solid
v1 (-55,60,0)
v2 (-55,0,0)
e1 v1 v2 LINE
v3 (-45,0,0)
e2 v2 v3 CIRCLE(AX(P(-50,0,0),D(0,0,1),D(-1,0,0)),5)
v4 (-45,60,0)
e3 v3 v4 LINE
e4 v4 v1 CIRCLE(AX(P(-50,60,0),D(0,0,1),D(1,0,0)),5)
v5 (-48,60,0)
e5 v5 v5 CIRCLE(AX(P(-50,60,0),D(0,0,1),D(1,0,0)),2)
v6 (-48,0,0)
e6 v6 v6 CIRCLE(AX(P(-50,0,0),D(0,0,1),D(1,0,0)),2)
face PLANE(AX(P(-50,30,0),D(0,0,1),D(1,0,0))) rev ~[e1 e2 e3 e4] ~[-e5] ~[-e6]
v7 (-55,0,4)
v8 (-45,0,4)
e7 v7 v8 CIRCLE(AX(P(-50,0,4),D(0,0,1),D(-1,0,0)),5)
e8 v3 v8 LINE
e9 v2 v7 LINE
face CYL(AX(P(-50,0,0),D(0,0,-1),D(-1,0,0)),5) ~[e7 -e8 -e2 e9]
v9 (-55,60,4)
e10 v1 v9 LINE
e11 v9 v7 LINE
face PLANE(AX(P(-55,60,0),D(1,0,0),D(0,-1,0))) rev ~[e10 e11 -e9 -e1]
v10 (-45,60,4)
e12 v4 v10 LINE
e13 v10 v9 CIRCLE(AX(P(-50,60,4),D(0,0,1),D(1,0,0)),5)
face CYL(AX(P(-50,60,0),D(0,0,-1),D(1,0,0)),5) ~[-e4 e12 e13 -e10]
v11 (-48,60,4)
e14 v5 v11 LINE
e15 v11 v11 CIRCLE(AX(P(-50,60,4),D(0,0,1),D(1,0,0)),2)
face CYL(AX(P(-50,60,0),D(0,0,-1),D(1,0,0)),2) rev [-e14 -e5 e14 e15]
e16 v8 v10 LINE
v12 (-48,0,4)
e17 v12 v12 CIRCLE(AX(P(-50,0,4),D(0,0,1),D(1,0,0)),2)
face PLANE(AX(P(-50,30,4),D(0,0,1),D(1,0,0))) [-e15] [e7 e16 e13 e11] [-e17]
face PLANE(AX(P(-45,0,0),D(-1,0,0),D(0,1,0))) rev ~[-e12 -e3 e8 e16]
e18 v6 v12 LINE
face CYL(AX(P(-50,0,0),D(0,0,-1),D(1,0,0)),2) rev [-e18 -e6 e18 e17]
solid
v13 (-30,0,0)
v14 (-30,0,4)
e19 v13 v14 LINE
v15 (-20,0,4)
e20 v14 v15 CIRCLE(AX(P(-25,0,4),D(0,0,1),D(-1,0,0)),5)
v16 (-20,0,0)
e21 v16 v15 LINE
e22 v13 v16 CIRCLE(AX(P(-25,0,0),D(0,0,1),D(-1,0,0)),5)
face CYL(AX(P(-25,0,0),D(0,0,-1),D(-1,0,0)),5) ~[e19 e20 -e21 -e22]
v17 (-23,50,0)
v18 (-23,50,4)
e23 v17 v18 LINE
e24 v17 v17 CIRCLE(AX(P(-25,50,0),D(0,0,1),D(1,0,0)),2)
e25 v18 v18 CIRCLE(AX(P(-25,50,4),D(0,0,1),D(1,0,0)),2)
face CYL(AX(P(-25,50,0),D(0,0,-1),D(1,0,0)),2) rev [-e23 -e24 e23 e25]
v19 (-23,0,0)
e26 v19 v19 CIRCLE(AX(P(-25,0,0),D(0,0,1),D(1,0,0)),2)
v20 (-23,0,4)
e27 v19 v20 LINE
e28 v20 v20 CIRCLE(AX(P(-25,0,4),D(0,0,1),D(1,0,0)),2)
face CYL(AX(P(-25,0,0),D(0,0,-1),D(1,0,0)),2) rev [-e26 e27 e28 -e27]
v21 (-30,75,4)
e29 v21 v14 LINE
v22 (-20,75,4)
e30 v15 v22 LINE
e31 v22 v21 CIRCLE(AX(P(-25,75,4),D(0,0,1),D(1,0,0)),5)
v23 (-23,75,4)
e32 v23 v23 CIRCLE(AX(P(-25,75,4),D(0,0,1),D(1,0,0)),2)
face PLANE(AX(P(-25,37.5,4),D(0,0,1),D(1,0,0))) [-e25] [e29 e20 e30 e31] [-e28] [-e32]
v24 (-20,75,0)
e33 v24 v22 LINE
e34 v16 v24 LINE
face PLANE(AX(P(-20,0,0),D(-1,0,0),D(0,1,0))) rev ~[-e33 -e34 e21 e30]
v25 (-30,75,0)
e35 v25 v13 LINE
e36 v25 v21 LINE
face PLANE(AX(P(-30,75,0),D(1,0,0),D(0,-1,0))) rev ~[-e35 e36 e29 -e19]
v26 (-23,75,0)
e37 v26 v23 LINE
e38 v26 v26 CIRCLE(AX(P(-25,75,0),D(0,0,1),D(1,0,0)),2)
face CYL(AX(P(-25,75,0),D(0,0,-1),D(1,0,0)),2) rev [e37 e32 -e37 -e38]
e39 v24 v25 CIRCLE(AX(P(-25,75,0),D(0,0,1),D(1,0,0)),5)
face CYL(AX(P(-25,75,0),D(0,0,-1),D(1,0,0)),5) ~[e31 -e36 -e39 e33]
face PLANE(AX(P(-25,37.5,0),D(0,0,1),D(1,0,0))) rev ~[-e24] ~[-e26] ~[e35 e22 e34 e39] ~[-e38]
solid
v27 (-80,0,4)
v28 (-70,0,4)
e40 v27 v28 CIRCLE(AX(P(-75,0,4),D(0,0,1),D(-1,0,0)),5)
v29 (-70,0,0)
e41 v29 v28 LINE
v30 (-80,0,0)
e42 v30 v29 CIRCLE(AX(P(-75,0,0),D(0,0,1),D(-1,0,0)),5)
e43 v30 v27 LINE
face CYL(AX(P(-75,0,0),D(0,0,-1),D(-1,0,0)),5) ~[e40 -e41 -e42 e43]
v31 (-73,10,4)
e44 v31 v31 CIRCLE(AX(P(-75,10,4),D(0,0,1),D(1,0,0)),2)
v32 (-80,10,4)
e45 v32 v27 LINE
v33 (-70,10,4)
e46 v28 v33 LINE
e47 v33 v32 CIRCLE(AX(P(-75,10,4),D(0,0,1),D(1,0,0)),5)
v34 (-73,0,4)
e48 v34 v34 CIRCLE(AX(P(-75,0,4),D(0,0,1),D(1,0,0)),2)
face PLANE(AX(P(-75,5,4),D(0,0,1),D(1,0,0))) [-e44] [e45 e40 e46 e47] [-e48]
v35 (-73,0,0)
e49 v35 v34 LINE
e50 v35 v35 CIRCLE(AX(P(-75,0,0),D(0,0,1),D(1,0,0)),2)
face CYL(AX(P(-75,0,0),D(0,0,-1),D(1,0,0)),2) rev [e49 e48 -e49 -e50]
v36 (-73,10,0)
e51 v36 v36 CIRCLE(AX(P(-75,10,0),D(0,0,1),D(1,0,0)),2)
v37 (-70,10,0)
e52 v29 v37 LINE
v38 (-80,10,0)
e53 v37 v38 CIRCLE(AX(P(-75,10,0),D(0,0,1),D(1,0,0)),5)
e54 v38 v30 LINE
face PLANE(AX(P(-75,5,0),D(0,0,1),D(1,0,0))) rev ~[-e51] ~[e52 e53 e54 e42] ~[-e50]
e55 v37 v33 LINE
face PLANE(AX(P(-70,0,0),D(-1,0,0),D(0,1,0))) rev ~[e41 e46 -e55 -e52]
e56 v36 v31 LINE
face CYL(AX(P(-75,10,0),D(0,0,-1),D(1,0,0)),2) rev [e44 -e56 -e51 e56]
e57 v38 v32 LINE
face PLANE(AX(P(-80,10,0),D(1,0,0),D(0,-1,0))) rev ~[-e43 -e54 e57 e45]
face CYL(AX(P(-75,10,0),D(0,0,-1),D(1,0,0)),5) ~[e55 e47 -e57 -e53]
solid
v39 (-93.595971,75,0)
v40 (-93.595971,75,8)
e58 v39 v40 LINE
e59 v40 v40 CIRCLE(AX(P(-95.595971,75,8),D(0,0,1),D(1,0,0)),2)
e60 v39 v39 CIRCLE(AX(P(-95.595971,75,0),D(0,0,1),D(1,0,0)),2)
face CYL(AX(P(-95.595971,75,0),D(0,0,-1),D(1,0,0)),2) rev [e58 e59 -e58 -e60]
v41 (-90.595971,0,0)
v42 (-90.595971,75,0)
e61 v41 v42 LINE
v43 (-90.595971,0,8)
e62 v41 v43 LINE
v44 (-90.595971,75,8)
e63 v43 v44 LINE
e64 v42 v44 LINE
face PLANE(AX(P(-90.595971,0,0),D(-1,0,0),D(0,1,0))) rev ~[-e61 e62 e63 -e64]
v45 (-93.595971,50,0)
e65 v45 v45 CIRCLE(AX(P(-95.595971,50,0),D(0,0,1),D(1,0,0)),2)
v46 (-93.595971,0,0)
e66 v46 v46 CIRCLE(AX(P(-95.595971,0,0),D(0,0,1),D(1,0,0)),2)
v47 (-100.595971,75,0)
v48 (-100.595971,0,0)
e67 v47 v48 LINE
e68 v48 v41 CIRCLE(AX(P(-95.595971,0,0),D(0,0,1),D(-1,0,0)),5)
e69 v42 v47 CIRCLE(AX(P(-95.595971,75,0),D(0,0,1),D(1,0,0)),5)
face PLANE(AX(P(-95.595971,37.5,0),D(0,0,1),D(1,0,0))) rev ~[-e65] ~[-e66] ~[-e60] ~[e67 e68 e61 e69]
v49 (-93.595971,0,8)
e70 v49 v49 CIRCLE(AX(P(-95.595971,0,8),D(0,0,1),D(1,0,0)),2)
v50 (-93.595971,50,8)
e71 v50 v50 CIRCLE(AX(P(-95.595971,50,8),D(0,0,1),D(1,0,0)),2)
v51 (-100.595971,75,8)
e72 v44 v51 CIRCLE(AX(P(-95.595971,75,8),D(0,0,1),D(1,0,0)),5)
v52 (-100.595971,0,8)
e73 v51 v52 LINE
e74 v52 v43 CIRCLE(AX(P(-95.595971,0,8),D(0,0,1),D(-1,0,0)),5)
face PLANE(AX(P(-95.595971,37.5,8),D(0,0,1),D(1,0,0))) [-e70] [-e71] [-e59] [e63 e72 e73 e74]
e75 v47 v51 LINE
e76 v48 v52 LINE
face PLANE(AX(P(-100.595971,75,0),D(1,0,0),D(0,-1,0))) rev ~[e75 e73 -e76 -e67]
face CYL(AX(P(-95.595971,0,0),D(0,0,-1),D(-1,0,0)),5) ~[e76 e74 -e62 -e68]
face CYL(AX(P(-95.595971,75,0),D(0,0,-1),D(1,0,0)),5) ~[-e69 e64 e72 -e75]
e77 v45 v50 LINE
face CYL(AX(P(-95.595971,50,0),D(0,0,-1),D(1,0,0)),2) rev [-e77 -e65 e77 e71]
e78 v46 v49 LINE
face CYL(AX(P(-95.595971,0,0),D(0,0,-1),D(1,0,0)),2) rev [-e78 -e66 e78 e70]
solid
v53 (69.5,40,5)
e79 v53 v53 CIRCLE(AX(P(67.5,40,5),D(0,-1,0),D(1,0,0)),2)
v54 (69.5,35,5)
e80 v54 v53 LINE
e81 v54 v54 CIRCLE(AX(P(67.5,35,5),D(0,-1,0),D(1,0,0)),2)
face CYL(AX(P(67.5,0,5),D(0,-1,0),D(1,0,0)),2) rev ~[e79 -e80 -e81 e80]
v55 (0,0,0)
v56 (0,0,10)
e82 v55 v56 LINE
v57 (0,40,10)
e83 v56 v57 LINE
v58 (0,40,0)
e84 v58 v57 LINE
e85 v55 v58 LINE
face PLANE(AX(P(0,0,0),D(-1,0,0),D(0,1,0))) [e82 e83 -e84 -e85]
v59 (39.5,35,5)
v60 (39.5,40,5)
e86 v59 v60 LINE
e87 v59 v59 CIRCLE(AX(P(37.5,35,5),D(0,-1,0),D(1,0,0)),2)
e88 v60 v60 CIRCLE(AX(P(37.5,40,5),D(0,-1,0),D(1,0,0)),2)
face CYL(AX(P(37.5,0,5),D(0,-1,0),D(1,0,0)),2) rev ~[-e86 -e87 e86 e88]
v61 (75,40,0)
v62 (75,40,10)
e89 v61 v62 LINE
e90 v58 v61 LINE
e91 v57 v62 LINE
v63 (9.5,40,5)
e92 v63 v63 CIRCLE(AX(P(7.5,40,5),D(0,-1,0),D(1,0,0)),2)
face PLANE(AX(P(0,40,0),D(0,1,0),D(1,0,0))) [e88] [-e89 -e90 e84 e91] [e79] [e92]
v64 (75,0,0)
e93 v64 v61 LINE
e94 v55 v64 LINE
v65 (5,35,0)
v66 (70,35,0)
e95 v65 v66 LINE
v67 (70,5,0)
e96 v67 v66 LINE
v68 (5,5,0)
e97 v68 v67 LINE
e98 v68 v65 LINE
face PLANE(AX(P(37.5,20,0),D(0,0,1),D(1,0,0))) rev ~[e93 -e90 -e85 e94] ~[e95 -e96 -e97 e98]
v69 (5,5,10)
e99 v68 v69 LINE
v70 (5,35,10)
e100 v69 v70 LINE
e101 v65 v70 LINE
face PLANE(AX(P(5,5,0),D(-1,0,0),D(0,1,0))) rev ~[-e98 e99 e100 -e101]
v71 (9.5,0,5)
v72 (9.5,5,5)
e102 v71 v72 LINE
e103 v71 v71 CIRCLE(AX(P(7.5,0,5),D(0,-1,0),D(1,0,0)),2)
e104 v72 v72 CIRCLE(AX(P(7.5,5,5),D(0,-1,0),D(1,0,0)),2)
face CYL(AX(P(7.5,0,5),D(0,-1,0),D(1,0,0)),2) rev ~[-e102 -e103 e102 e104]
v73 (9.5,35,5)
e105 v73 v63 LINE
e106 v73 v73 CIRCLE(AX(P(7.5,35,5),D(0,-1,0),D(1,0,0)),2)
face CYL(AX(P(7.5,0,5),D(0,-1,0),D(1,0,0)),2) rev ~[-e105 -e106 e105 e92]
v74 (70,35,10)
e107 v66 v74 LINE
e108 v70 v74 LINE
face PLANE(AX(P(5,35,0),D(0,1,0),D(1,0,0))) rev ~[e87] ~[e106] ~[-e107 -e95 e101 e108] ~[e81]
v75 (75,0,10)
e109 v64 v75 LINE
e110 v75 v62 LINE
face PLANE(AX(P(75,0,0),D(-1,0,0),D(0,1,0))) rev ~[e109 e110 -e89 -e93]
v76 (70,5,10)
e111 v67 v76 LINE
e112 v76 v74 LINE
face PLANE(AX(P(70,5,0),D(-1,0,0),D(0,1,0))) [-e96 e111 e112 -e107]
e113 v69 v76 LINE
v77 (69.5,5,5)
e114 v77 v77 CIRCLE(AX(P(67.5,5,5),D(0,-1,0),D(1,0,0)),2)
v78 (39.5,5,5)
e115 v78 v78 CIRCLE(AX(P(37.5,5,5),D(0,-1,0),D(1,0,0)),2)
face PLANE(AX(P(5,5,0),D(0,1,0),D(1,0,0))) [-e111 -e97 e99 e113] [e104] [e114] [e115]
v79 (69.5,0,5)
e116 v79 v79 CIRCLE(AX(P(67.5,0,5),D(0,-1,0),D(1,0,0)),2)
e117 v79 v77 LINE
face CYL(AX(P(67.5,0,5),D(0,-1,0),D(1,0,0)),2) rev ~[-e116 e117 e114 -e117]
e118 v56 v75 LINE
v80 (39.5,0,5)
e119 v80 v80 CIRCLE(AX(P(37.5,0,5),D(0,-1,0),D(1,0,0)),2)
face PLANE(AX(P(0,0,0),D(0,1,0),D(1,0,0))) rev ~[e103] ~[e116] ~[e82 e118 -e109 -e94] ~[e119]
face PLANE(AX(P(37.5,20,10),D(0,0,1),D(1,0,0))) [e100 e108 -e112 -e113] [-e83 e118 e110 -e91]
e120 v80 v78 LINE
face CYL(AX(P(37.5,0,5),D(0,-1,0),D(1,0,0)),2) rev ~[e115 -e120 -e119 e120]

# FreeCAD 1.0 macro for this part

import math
import FreeCAD as App
import Part
import Sketcher
from FreeCAD import Vector

doc = App.newDocument("Part")
params = doc.addObject("Spreadsheet::Sheet", "Params")
for row, (alias, value) in enumerate([
    ("sketch1_width", "75 mm"),
    ("sketch1_width2", "65 mm"),
    ("sketch1_height", "40 mm"),
    ("sketch1_height2", "30 mm"),
    ("pad1_length", "10 mm"),
    ("sketch2_diameter", "4 mm"),
    ("sketch3_diameter", "4 mm"),
    ("sketch3_radius", "5 mm"),
    ("sketch3_height", "10 mm"),
    ("sketch3_height2", "60 mm"),
    ("sketch3_height3", "75 mm"),
    ("pad2_length", "4 mm"),
    ("sketch4_diameter", "4 mm"),
    ("sketch4_radius", "5 mm"),
    ("sketch4_height", "75 mm"),
    ("pad3_length", "8 mm"),
], start=1):
    params.set(f"A{row}", alias)
    params.set(f"B{row}", "=" + value)
    params.setAlias(f"B{row}", alias)

body = doc.addObject("PartDesign::Body", "Body")

sketch1 = body.newObject("Sketcher::SketchObject", "Sketch")
sketch1.AttachmentSupport = (doc.getObject("XY_Plane"), [""])
sketch1.MapMode = "FlatFace"
sketch1.addGeometry(Part.LineSegment(Vector(0, 40, 0), Vector(0, 0, 0)), False)
sketch1.addGeometry(Part.LineSegment(Vector(0, 0, 0), Vector(75, 0, 0)), False)
sketch1.addGeometry(Part.LineSegment(Vector(75, 0, 0), Vector(75, 40, 0)), False)
sketch1.addGeometry(Part.LineSegment(Vector(75, 40, 0), Vector(0, 40, 0)), False)
sketch1.addGeometry(Part.LineSegment(Vector(70, 5, 0), Vector(5, 5, 0)), False)
sketch1.addGeometry(Part.LineSegment(Vector(5, 5, 0), Vector(5, 35, 0)), False)
sketch1.addGeometry(Part.LineSegment(Vector(5, 35, 0), Vector(70, 35, 0)), False)
sketch1.addGeometry(Part.LineSegment(Vector(70, 35, 0), Vector(70, 5, 0)), False)
sketch1.addConstraint(Sketcher.Constraint("Coincident", 0, 2, 1, 1))
sketch1.addConstraint(Sketcher.Constraint("Coincident", 1, 2, 2, 1))
sketch1.addConstraint(Sketcher.Constraint("Coincident", 2, 2, 3, 1))
sketch1.addConstraint(Sketcher.Constraint("Coincident", 3, 2, 0, 1))
sketch1.addConstraint(Sketcher.Constraint("Coincident", 4, 2, 5, 1))
sketch1.addConstraint(Sketcher.Constraint("Coincident", 5, 2, 6, 1))
sketch1.addConstraint(Sketcher.Constraint("Coincident", 6, 2, 7, 1))
sketch1.addConstraint(Sketcher.Constraint("Coincident", 7, 2, 4, 1))
sketch1.addConstraint(Sketcher.Constraint("Vertical", 0))
sketch1.addConstraint(Sketcher.Constraint("Horizontal", 1))
sketch1.addConstraint(Sketcher.Constraint("Vertical", 2))
sketch1.addConstraint(Sketcher.Constraint("Horizontal", 3))
sketch1.addConstraint(Sketcher.Constraint("Horizontal", 4))
sketch1.addConstraint(Sketcher.Constraint("Vertical", 5))
sketch1.addConstraint(Sketcher.Constraint("Horizontal", 6))
sketch1.addConstraint(Sketcher.Constraint("Vertical", 7))
sketch1.addConstraint(Sketcher.Constraint("Coincident", 0, 2, -1, 1))
sketch1.addConstraint(Sketcher.Constraint("DistanceX", 1, 1, 1, 2, 75.0))
sketch1.addConstraint(Sketcher.Constraint("DistanceX", 4, 2, 4, 1, 65.0))
sketch1.addConstraint(Sketcher.Constraint("DistanceY", 0, 2, 0, 1, 40.0))
sketch1.addConstraint(Sketcher.Constraint("DistanceY", 5, 1, 5, 2, 30.0))
sketch1.addConstraint(Sketcher.Constraint("DistanceX", -1, 1, 4, 2, 5.0))
sketch1.addConstraint(Sketcher.Constraint("DistanceY", -1, 1, 4, 2, 5.0))
sketch1.setExpression("Constraints[17]", "Params.sketch1_width")
sketch1.setExpression("Constraints[18]", "Params.sketch1_width2")
sketch1.setExpression("Constraints[19]", "Params.sketch1_height")
sketch1.setExpression("Constraints[20]", "Params.sketch1_height2")
pad1 = body.newObject("PartDesign::Pad", "Pad")
pad1.Profile = sketch1
pad1.setExpression("Length", "Params.pad1_length")

sketch2 = body.newObject("Sketcher::SketchObject", "Sketch001")
sketch2.AttachmentSupport = (doc.getObject("XZ_Plane"), [""])
sketch2.MapMode = "FlatFace"
sketch2.addGeometry(Part.Circle(Vector(7.5, 5, 0), Vector(0, 0, 1), 2), False)
sketch2.addGeometry(Part.Circle(Vector(37.5, 5, 0), Vector(0, 0, 1), 2), False)
sketch2.addGeometry(Part.Circle(Vector(67.5, 5, 0), Vector(0, 0, 1), 2), False)
sketch2.addConstraint(Sketcher.Constraint("Equal", 0, 1))
sketch2.addConstraint(Sketcher.Constraint("Equal", 1, 2))
sketch2.addConstraint(Sketcher.Constraint("Horizontal", 0, 3, 1, 3))
sketch2.addConstraint(Sketcher.Constraint("Horizontal", 1, 3, 2, 3))
sketch2.addConstraint(Sketcher.Constraint("Diameter", 0, 4.0))
sketch2.addConstraint(Sketcher.Constraint("DistanceY", -1, 1, 0, 3, 5.0))
sketch2.addConstraint(Sketcher.Constraint("DistanceX", 0, 3, 1, 3, 30.0))
sketch2.addConstraint(Sketcher.Constraint("DistanceX", 1, 3, 2, 3, 30.0))
sketch2.addConstraint(Sketcher.Constraint("DistanceX", -1, 1, 0, 3, 7.5))
sketch2.setExpression("Constraints[4]", "Params.sketch2_diameter")
pocket1 = body.newObject("PartDesign::Pocket", "Pocket")
pocket1.Profile = sketch2
pocket1.Type = "ThroughAll"
body2 = doc.addObject("PartDesign::Body", "Body001")
body2.AllowCompound = True

sketch3 = body2.newObject("Sketcher::SketchObject", "Sketch002")
sketch3.AttachmentSupport = (doc.getObject("XY_Plane001"), [""])
sketch3.MapMode = "FlatFace"
sketch3.addGeometry(Part.LineSegment(Vector(-70, 0, 0), Vector(-70, 10, 0)), False)
sketch3.addGeometry(Part.ArcOfCircle(Part.Circle(Vector(-75, 10, 0), Vector(0, 0, 1), 5), math.radians(0), math.radians(180)), False)
sketch3.addGeometry(Part.LineSegment(Vector(-80, 10, 0), Vector(-80, 0, 0)), False)
sketch3.addGeometry(Part.ArcOfCircle(Part.Circle(Vector(-75, 0, 0), Vector(0, 0, 1), 5), math.radians(180), math.radians(360)), False)
sketch3.addGeometry(Part.Circle(Vector(-75, 0, 0), Vector(0, 0, 1), 2), False)
sketch3.addGeometry(Part.Circle(Vector(-75, 10, 0), Vector(0, 0, 1), 2), False)
sketch3.addGeometry(Part.LineSegment(Vector(-45, 0, 0), Vector(-45, 60, 0)), False)
sketch3.addGeometry(Part.ArcOfCircle(Part.Circle(Vector(-50, 60, 0), Vector(0, 0, 1), 5), math.radians(0), math.radians(180)), False)
sketch3.addGeometry(Part.LineSegment(Vector(-55, 60, 0), Vector(-55, 0, 0)), False)
sketch3.addGeometry(Part.ArcOfCircle(Part.Circle(Vector(-50, 0, 0), Vector(0, 0, 1), 5), math.radians(180), math.radians(360)), False)
sketch3.addGeometry(Part.Circle(Vector(-50, 0, 0), Vector(0, 0, 1), 2), False)
sketch3.addGeometry(Part.Circle(Vector(-50, 60, 0), Vector(0, 0, 1), 2), False)
sketch3.addGeometry(Part.LineSegment(Vector(-20, 0, 0), Vector(-20, 75, 0)), False)
sketch3.addGeometry(Part.ArcOfCircle(Part.Circle(Vector(-25, 75, 0), Vector(0, 0, 1), 5), math.radians(0), math.radians(180)), False)
sketch3.addGeometry(Part.LineSegment(Vector(-30, 75, 0), Vector(-30, 0, 0)), False)
sketch3.addGeometry(Part.ArcOfCircle(Part.Circle(Vector(-25, 0, 0), Vector(0, 0, 1), 5), math.radians(180), math.radians(360)), False)
sketch3.addGeometry(Part.Circle(Vector(-25, 0, 0), Vector(0, 0, 1), 2), False)
sketch3.addGeometry(Part.Circle(Vector(-25, 50, 0), Vector(0, 0, 1), 2), False)
sketch3.addGeometry(Part.Circle(Vector(-25, 75, 0), Vector(0, 0, 1), 2), False)
sketch3.addConstraint(Sketcher.Constraint("Tangent", 0, 2, 1, 1))
sketch3.addConstraint(Sketcher.Constraint("Tangent", 1, 2, 2, 1))
sketch3.addConstraint(Sketcher.Constraint("Tangent", 2, 2, 3, 1))
sketch3.addConstraint(Sketcher.Constraint("Tangent", 3, 2, 0, 1))
sketch3.addConstraint(Sketcher.Constraint("Tangent", 6, 2, 7, 1))
sketch3.addConstraint(Sketcher.Constraint("Tangent", 7, 2, 8, 1))
sketch3.addConstraint(Sketcher.Constraint("Tangent", 8, 2, 9, 1))
sketch3.addConstraint(Sketcher.Constraint("Tangent", 9, 2, 6, 1))
sketch3.addConstraint(Sketcher.Constraint("Tangent", 12, 2, 13, 1))
sketch3.addConstraint(Sketcher.Constraint("Tangent", 13, 2, 14, 1))
sketch3.addConstraint(Sketcher.Constraint("Tangent", 14, 2, 15, 1))
sketch3.addConstraint(Sketcher.Constraint("Tangent", 15, 2, 12, 1))
sketch3.addConstraint(Sketcher.Constraint("Vertical", 0))
sketch3.addConstraint(Sketcher.Constraint("Vertical", 2))
sketch3.addConstraint(Sketcher.Constraint("Vertical", 6))
sketch3.addConstraint(Sketcher.Constraint("Vertical", 8))
sketch3.addConstraint(Sketcher.Constraint("Vertical", 12))
sketch3.addConstraint(Sketcher.Constraint("Vertical", 14))
sketch3.addConstraint(Sketcher.Constraint("Coincident", 4, 3, 3, 3))
sketch3.addConstraint(Sketcher.Constraint("Coincident", 5, 3, 1, 3))
sketch3.addConstraint(Sketcher.Constraint("Coincident", 10, 3, 9, 3))
sketch3.addConstraint(Sketcher.Constraint("Coincident", 11, 3, 7, 3))
sketch3.addConstraint(Sketcher.Constraint("Coincident", 16, 3, 15, 3))
sketch3.addConstraint(Sketcher.Constraint("Coincident", 18, 3, 13, 3))
sketch3.addConstraint(Sketcher.Constraint("Equal", 4, 5))
sketch3.addConstraint(Sketcher.Constraint("Equal", 3, 7))
sketch3.addConstraint(Sketcher.Constraint("Equal", 5, 10))
sketch3.addConstraint(Sketcher.Constraint("Equal", 10, 11))
sketch3.addConstraint(Sketcher.Constraint("Equal", 9, 13))
sketch3.addConstraint(Sketcher.Constraint("Equal", 11, 16))
sketch3.addConstraint(Sketcher.Constraint("Equal", 16, 17))
sketch3.addConstraint(Sketcher.Constraint("Equal", 17, 18))
sketch3.addConstraint(Sketcher.Constraint("PointOnObject", 3, 3, -1))
sketch3.addConstraint(Sketcher.Constraint("PointOnObject", 9, 3, -1))
sketch3.addConstraint(Sketcher.Constraint("PointOnObject", 15, 3, -1))
sketch3.addConstraint(Sketcher.Constraint("Vertical", 16, 3, 17, 3))
sketch3.addConstraint(Sketcher.Constraint("Diameter", 4, 4.0))
sketch3.addConstraint(Sketcher.Constraint("Radius", 1, 5.0))
sketch3.addConstraint(Sketcher.Constraint("DistanceY", 0, 1, 0, 2, 10.0))
sketch3.addConstraint(Sketcher.Constraint("DistanceY", 6, 1, 6, 2, 60.0))
sketch3.addConstraint(Sketcher.Constraint("DistanceY", 12, 1, 12, 2, 75.0))
sketch3.addConstraint(Sketcher.Constraint("DistanceX", 1, 3, -1, 1, 75.0))
sketch3.addConstraint(Sketcher.Constraint("DistanceX", 7, 3, -1, 1, 50.0))
sketch3.addConstraint(Sketcher.Constraint("DistanceX", 13, 3, -1, 1, 25.0))
sketch3.addConstraint(Sketcher.Constraint("DistanceY", -1, 1, 17, 3, 50.0))
sketch3.setExpression("Constraints[36]", "Params.sketch3_diameter")
sketch3.setExpression("Constraints[37]", "Params.sketch3_radius")
sketch3.setExpression("Constraints[38]", "Params.sketch3_height")
sketch3.setExpression("Constraints[39]", "Params.sketch3_height2")
sketch3.setExpression("Constraints[40]", "Params.sketch3_height3")
pad2 = body2.newObject("PartDesign::Pad", "Pad001")
pad2.Profile = sketch3
pad2.setExpression("Length", "Params.pad2_length")
body3 = doc.addObject("PartDesign::Body", "Body002")

sketch4 = body3.newObject("Sketcher::SketchObject", "Sketch003")
sketch4.AttachmentSupport = (doc.getObject("XY_Plane002"), [""])
sketch4.MapMode = "FlatFace"
sketch4.addGeometry(Part.LineSegment(Vector(-100.6, 75, 0), Vector(-100.6, 0, 0)), False)
sketch4.addGeometry(Part.ArcOfCircle(Part.Circle(Vector(-95.6, 0, 0), Vector(0, 0, 1), 5), math.radians(180), math.radians(360)), False)
sketch4.addGeometry(Part.LineSegment(Vector(-90.6, 0, 0), Vector(-90.6, 75, 0)), False)
sketch4.addGeometry(Part.ArcOfCircle(Part.Circle(Vector(-95.6, 75, 0), Vector(0, 0, 1), 5), math.radians(0), math.radians(180)), False)
sketch4.addGeometry(Part.Circle(Vector(-95.6, 0, 0), Vector(0, 0, 1), 2), False)
sketch4.addGeometry(Part.Circle(Vector(-95.6, 50, 0), Vector(0, 0, 1), 2), False)
sketch4.addGeometry(Part.Circle(Vector(-95.6, 75, 0), Vector(0, 0, 1), 2), False)
sketch4.addConstraint(Sketcher.Constraint("Tangent", 0, 2, 1, 1))
sketch4.addConstraint(Sketcher.Constraint("Tangent", 1, 2, 2, 1))
sketch4.addConstraint(Sketcher.Constraint("Tangent", 2, 2, 3, 1))
sketch4.addConstraint(Sketcher.Constraint("Tangent", 3, 2, 0, 1))
sketch4.addConstraint(Sketcher.Constraint("Vertical", 0))
sketch4.addConstraint(Sketcher.Constraint("Vertical", 2))
sketch4.addConstraint(Sketcher.Constraint("Coincident", 4, 3, 1, 3))
sketch4.addConstraint(Sketcher.Constraint("Coincident", 6, 3, 3, 3))
sketch4.addConstraint(Sketcher.Constraint("Equal", 4, 5))
sketch4.addConstraint(Sketcher.Constraint("Equal", 5, 6))
sketch4.addConstraint(Sketcher.Constraint("PointOnObject", 1, 3, -1))
sketch4.addConstraint(Sketcher.Constraint("Vertical", 4, 3, 5, 3))
sketch4.addConstraint(Sketcher.Constraint("Diameter", 4, 4.0))
sketch4.addConstraint(Sketcher.Constraint("Radius", 1, 5.0))
sketch4.addConstraint(Sketcher.Constraint("DistanceY", 0, 2, 0, 1, 75.0))
sketch4.addConstraint(Sketcher.Constraint("DistanceY", -1, 1, 5, 3, 50.0))
sketch4.addConstraint(Sketcher.Constraint("DistanceX", 1, 3, -1, 1, 95.595971))
sketch4.setExpression("Constraints[12]", "Params.sketch4_diameter")
sketch4.setExpression("Constraints[13]", "Params.sketch4_radius")
sketch4.setExpression("Constraints[14]", "Params.sketch4_height")
pad3 = body3.newObject("PartDesign::Pad", "Pad002")
pad3.Profile = sketch4
pad3.setExpression("Length", "Params.pad3_length")

doc.recompute()
